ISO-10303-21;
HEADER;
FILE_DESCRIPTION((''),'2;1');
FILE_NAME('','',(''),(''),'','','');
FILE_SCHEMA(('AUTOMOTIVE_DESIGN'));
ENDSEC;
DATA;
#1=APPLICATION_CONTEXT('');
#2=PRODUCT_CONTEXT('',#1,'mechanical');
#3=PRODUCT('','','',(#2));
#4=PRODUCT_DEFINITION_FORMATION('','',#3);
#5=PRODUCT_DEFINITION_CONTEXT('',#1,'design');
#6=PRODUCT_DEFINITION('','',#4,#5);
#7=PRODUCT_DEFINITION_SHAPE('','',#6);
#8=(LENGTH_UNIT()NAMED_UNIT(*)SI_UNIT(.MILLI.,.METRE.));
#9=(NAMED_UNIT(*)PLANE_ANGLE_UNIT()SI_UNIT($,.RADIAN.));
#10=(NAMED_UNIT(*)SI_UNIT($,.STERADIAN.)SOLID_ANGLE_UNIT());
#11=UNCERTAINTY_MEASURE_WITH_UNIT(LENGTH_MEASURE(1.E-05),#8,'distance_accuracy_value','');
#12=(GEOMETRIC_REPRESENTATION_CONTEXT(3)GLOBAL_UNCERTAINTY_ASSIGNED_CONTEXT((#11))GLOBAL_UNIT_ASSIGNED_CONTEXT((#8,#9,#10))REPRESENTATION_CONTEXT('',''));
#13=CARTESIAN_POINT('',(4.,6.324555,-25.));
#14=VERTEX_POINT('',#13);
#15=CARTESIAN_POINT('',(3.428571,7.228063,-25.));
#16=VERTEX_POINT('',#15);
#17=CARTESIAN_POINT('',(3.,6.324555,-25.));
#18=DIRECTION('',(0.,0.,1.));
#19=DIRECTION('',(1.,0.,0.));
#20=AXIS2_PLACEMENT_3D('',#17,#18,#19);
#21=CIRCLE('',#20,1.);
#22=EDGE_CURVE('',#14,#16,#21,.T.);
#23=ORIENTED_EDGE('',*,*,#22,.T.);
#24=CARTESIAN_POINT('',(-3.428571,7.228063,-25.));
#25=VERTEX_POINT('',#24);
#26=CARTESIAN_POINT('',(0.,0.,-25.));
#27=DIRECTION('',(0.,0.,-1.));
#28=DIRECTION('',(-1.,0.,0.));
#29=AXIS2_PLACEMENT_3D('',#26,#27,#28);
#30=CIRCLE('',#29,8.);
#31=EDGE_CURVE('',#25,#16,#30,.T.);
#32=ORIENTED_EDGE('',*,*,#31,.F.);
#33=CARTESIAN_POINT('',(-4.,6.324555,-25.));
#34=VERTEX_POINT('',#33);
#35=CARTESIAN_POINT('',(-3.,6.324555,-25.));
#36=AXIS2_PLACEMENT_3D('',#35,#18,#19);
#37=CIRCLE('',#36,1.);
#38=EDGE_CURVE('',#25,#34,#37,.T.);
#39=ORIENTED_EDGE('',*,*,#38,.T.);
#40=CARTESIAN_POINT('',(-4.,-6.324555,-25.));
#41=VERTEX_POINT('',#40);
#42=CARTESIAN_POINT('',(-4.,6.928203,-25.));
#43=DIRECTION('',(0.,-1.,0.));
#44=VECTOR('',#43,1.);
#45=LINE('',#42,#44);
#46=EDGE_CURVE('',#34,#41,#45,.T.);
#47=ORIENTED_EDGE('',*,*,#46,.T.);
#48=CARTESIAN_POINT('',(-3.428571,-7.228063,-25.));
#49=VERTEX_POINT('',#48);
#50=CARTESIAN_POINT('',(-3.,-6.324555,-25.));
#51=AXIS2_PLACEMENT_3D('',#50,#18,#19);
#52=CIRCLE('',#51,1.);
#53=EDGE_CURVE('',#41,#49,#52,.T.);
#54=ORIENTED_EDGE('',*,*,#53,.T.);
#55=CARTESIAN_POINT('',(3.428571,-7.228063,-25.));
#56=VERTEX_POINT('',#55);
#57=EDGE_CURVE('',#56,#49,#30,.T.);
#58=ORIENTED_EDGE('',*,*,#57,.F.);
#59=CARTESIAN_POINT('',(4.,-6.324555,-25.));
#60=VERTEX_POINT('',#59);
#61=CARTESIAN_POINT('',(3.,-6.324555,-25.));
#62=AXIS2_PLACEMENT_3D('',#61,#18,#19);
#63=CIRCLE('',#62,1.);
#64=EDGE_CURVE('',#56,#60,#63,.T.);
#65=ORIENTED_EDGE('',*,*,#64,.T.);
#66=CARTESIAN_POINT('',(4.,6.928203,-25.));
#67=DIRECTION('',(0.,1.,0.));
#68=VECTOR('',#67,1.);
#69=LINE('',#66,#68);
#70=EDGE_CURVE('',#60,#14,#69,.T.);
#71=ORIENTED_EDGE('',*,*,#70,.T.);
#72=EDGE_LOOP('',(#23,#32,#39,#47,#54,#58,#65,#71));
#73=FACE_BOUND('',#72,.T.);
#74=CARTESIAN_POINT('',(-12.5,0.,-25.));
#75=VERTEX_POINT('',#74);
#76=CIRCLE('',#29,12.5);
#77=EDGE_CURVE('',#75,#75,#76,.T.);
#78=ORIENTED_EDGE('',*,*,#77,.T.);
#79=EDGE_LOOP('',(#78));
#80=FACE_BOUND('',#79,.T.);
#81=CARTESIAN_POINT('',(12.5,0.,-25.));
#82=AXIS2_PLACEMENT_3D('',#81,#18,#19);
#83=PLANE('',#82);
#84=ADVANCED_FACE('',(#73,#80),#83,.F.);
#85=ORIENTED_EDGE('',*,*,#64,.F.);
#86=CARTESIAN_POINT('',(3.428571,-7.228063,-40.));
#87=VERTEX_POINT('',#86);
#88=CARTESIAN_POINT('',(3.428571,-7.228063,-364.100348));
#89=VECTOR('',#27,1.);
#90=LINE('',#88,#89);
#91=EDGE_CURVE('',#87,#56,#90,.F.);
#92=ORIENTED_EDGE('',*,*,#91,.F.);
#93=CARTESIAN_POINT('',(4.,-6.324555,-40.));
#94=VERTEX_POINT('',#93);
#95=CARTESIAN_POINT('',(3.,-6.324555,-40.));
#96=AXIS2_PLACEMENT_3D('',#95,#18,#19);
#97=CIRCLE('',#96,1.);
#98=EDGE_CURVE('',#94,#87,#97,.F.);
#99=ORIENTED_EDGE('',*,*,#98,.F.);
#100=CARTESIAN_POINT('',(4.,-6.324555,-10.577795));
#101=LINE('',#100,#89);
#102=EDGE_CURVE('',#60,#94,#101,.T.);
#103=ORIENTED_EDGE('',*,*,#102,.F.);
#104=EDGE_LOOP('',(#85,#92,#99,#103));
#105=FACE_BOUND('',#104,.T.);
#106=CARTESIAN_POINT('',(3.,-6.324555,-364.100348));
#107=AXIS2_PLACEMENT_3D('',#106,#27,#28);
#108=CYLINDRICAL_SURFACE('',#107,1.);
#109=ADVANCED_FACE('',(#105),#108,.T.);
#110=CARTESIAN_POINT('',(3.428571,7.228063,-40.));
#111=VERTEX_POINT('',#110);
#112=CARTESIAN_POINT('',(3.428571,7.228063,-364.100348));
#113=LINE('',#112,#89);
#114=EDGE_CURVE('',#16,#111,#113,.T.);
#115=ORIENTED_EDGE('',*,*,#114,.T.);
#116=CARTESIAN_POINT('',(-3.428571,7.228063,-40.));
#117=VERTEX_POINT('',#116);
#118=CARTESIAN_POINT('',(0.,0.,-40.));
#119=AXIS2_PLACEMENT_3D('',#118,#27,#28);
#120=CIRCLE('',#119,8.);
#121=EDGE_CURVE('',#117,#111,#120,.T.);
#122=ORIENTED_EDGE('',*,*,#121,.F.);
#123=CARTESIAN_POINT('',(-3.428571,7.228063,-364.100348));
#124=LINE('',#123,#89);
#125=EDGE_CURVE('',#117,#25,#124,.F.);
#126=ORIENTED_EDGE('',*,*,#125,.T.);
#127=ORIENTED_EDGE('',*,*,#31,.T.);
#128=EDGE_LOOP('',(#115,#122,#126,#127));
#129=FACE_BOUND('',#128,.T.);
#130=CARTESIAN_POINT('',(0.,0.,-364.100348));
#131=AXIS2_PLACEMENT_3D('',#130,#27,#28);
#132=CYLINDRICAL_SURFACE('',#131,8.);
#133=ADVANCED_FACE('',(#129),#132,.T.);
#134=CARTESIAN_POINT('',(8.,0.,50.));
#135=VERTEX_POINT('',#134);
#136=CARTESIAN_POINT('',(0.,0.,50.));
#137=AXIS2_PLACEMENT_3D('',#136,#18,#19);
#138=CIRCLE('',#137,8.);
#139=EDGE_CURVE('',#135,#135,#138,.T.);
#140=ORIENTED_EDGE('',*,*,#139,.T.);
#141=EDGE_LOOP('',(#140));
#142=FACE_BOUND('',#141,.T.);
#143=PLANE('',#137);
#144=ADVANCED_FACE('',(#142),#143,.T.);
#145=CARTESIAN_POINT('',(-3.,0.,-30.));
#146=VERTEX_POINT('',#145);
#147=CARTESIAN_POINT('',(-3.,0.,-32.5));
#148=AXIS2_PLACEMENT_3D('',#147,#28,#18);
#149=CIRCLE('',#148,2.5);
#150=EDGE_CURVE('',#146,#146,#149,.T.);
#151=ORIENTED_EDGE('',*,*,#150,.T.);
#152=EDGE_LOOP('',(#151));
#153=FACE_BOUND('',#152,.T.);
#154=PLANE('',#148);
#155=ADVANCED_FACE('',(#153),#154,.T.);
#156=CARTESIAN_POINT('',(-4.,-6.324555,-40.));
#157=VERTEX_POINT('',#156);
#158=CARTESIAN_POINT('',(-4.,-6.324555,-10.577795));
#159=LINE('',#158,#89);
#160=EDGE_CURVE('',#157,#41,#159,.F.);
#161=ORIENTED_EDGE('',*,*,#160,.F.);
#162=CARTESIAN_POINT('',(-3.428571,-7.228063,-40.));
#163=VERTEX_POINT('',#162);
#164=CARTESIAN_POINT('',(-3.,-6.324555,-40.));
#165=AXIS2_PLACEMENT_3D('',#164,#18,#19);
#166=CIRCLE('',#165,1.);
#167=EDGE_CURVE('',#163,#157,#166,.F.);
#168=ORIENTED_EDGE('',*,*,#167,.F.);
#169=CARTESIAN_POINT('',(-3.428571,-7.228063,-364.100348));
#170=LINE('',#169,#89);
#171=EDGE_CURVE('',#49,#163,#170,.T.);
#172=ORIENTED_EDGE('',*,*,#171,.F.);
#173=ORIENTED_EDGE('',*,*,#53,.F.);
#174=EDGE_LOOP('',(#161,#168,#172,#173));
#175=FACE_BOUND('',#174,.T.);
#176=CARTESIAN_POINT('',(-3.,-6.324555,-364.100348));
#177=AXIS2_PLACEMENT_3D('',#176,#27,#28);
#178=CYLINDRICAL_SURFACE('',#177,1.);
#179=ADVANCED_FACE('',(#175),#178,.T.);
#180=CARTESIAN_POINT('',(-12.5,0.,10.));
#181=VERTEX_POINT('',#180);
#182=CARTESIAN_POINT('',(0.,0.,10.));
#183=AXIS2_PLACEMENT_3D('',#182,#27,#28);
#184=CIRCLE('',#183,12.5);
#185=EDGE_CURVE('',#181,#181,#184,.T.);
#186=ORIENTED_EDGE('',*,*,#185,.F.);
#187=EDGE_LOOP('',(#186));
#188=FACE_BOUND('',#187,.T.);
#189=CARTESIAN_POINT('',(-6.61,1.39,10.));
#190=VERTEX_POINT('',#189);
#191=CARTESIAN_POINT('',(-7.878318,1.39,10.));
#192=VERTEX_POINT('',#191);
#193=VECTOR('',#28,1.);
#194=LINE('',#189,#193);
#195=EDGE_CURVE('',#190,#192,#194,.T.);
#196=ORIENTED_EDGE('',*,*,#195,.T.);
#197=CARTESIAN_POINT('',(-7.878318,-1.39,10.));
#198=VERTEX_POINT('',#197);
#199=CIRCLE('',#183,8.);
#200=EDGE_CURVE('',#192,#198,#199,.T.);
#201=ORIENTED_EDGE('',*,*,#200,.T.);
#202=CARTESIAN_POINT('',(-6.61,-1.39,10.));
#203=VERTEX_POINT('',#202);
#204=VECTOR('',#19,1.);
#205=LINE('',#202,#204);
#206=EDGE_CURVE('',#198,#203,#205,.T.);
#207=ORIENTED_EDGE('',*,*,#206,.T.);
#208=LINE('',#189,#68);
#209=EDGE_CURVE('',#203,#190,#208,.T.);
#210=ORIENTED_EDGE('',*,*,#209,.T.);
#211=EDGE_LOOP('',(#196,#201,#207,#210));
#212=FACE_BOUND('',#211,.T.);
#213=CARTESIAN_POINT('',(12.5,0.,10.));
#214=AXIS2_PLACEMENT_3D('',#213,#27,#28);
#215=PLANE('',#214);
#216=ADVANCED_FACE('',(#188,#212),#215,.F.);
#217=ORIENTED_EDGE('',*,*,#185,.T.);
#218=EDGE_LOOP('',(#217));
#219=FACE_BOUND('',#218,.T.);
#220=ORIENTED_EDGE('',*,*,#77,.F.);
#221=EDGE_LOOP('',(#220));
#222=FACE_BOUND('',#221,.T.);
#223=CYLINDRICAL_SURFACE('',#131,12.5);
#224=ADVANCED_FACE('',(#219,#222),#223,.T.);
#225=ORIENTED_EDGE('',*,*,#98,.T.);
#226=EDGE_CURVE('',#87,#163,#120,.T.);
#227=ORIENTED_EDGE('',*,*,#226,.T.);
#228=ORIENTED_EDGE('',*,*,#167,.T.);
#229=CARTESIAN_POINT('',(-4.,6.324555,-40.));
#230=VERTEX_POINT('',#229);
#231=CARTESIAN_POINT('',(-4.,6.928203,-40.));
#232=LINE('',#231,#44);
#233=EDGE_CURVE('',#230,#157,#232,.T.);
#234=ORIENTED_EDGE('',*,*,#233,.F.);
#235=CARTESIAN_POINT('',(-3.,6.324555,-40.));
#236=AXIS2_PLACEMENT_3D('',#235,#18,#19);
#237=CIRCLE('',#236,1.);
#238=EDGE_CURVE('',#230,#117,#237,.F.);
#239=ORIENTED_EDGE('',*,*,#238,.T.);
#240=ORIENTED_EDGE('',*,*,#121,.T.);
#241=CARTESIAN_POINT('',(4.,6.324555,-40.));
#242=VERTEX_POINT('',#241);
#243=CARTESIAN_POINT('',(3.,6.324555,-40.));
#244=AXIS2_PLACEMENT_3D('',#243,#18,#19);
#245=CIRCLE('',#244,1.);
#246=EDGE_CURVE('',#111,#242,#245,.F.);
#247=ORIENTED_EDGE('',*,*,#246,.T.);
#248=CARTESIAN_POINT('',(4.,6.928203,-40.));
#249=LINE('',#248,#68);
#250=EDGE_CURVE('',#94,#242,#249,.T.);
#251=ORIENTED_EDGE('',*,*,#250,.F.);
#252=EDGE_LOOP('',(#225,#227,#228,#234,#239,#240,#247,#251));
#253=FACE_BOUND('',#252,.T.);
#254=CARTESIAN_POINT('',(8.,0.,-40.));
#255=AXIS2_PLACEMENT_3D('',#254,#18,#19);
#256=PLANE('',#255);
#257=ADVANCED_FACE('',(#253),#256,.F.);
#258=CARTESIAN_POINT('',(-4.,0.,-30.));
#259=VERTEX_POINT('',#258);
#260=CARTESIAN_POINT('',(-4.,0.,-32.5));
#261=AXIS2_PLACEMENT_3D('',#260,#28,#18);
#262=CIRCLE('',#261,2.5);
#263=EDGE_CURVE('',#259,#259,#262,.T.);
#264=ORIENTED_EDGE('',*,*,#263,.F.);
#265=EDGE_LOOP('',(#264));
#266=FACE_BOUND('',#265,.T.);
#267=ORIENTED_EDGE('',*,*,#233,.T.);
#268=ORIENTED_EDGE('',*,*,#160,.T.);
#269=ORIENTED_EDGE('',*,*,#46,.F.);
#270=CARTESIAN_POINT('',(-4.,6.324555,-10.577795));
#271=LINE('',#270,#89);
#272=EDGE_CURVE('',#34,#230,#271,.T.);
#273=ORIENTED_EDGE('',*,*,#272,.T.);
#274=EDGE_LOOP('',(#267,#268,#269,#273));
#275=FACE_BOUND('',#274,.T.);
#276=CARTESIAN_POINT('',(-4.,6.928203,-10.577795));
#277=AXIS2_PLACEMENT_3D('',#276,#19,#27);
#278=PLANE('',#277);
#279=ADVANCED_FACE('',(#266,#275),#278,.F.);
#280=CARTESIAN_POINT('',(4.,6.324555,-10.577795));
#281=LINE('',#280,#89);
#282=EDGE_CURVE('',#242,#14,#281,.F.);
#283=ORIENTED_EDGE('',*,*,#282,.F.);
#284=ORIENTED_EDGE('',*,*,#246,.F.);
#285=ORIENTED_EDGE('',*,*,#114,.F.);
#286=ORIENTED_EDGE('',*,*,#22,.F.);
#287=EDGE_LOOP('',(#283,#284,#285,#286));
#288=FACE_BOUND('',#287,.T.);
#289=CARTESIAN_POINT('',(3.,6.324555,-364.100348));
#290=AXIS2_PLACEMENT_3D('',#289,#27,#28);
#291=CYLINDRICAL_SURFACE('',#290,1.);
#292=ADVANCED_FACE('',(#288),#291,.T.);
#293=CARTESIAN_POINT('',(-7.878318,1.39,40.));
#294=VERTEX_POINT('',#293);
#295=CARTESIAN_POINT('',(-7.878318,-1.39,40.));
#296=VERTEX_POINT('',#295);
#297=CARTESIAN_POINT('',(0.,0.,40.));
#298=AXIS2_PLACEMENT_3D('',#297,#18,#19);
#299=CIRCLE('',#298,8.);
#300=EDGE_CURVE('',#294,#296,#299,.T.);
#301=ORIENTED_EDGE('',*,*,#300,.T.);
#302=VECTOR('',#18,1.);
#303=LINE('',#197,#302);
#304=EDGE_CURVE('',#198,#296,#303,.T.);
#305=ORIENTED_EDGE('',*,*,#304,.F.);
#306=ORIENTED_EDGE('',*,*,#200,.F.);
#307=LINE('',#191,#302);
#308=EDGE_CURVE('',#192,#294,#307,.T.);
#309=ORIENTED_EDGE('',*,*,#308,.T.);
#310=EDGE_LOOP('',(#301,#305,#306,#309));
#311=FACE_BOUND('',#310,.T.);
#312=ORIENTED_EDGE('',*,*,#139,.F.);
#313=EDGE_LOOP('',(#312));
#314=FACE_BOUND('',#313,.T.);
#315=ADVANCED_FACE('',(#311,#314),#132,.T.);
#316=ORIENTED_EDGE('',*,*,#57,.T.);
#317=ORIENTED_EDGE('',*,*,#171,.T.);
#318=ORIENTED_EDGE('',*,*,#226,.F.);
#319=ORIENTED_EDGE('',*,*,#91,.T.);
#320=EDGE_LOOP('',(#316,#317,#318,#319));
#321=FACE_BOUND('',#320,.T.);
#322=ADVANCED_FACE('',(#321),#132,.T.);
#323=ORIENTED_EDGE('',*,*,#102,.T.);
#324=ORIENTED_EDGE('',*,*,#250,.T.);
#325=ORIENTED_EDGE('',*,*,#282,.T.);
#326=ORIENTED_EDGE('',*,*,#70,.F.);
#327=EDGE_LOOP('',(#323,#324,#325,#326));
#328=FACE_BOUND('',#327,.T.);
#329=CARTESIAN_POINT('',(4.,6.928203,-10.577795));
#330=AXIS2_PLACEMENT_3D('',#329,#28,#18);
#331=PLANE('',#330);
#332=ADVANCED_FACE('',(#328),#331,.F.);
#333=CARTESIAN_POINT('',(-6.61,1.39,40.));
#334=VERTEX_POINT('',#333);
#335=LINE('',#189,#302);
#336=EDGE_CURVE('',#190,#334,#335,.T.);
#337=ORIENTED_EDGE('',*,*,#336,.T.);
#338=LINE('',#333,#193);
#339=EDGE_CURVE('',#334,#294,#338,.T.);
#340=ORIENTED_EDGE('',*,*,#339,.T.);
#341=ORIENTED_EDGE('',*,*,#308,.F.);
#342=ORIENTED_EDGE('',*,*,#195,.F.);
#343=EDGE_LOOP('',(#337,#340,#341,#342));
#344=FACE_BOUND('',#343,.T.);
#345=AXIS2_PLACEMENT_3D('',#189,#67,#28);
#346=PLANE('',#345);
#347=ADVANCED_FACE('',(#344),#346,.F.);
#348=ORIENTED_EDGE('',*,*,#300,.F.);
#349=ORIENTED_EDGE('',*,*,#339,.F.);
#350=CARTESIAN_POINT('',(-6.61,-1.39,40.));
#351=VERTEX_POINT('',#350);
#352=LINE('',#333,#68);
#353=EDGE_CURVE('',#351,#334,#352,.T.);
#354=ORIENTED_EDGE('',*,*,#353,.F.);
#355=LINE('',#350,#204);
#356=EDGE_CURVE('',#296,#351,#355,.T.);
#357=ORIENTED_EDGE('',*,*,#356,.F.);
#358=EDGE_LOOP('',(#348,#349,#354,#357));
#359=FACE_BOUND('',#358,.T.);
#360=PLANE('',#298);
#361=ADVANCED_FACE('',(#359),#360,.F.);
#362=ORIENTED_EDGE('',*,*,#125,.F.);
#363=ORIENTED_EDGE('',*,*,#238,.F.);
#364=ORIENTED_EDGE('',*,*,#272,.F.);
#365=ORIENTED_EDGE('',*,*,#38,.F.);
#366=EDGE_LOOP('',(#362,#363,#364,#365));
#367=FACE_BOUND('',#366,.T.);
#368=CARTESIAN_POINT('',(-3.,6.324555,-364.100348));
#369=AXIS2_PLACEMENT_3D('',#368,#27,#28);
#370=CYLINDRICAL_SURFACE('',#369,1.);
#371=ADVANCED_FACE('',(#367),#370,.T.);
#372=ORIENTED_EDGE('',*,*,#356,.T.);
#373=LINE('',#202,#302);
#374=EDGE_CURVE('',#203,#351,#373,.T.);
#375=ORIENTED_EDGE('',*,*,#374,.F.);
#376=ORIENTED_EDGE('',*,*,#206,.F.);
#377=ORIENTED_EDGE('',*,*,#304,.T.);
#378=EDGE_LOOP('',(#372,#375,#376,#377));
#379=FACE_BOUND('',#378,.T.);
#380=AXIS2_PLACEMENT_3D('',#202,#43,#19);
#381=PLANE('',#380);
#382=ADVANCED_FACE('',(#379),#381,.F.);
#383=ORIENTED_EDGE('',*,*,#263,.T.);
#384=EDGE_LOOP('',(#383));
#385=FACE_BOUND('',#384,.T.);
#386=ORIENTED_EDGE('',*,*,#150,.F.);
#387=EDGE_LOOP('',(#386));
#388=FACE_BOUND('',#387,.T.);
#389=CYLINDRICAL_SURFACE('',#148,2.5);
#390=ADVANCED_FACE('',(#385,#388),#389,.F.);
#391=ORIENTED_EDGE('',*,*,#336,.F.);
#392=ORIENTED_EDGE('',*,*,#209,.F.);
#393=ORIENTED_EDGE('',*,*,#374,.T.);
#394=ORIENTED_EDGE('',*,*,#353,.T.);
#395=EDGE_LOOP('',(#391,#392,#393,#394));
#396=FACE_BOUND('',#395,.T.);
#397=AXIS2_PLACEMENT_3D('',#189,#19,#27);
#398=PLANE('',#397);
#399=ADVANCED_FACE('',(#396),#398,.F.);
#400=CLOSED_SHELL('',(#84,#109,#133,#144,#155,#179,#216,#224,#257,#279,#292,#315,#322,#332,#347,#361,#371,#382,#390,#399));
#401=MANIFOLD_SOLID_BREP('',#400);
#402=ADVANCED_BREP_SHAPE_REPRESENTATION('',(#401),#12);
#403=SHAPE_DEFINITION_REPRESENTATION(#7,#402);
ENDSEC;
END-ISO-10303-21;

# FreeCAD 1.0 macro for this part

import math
import FreeCAD as App
import Part
import Sketcher

V = App.Vector


def edges_at(feature, points):
    """Names of the edges that pass closest to the given points."""
    edges = feature.Shape.Edges
    near = lambda p: min(range(len(edges)), key=lambda i: edges[i].distToShape(Part.Vertex(*p))[0])
    return sorted({f"Edge{near(p) + 1}" for p in points})


def add_polygon(sketch, points):
    """Adds a closed chain of lines whose ends are joined by coincident constraints."""
    first, n = sketch.GeometryCount, len(points)
    for a, b in zip(points, points[1:] + points[:1]):
        sketch.addGeometry(Part.LineSegment(App.Vector(*a, 0), App.Vector(*b, 0)), False)
    for i in range(n):
        sketch.addConstraint(Sketcher.Constraint("Coincident", first + i, 2, first + (i + 1) % n, 1))

doc = App.newDocument("Part")
body = doc.addObject("PartDesign::Body", "Body")

sketch1 = body.newObject("Sketcher::SketchObject", "Sketch")
sketch1.AttachmentSupport = (doc.getObject("XZ_Plane"), [""])
sketch1.MapMode = "FlatFace"
add_polygon(sketch1, [(0, 40), (8, 40), (8, 10), (12.5, 10), (12.5, -25), (8, -25), (8, -40), (0, -40)])
sketch1.addConstraint(Sketcher.Constraint("Horizontal", 0))
sketch1.addConstraint(Sketcher.Constraint("Vertical", 1))
sketch1.addConstraint(Sketcher.Constraint("Horizontal", 2))
sketch1.addConstraint(Sketcher.Constraint("Vertical", 3))
sketch1.addConstraint(Sketcher.Constraint("Horizontal", 4))
sketch1.addConstraint(Sketcher.Constraint("Vertical", 5))
sketch1.addConstraint(Sketcher.Constraint("Horizontal", 6))
sketch1.addConstraint(Sketcher.Constraint("Vertical", 7))
sketch1.addConstraint(Sketcher.Constraint("Symmetric", 6, 2, 7, 2, -1, 1))
sketch1.addConstraint(Sketcher.Constraint("Vertical", 1, 2, 4, 2))
sketch1.addConstraint(Sketcher.Constraint("DistanceX", 0, 1, 0, 2, 8.0))
sketch1.addConstraint(Sketcher.Constraint("DistanceY", 1, 2, 1, 1, 30.0))
sketch1.addConstraint(Sketcher.Constraint("DistanceY", 3, 2, 3, 1, 35.0))
sketch1.addConstraint(Sketcher.Constraint("DistanceY", 5, 2, 5, 1, 15.0))
sketch1.addConstraint(Sketcher.Constraint("DistanceX", 2, 1, 2, 2, 4.5))
revolution = body.newObject("PartDesign::Revolution", "Revolution")
revolution.Profile = sketch1
revolution.ReferenceAxis = (sketch1, ["V_Axis"])
revolution.Angle = 360

sketch2 = body.newObject("Sketcher::SketchObject", "Sketch001")
sketch2.AttachmentSupport = (doc.getObject("XY_Plane"), [""])
sketch2.MapMode = "FlatFace"
sketch2.AttachmentOffset = App.Placement(V(0, 0, 10), App.Rotation())
sketch2.addGeometry(Part.LineSegment(V(-6.61, 1.39, 0), V(-7.878318, 1.39, 0)), False)
sketch2.addGeometry(Part.ArcOfCircle(Part.Circle(V(0, 0, 0), V(0, 0, 1), 8), math.radians(169.994076), math.radians(190.005924)), False)
sketch2.addGeometry(Part.LineSegment(V(-7.878318, -1.39, 0), V(-6.61, -1.39, 0)), False)
sketch2.addGeometry(Part.LineSegment(V(-6.61, -1.39, 0), V(-6.61, 1.39, 0)), False)
sketch2.addConstraint(Sketcher.Constraint("Coincident", 0, 2, 1, 1))
sketch2.addConstraint(Sketcher.Constraint("Coincident", 1, 2, 2, 1))
sketch2.addConstraint(Sketcher.Constraint("Coincident", 2, 2, 3, 1))
sketch2.addConstraint(Sketcher.Constraint("Coincident", 3, 2, 0, 1))
sketch2.addConstraint(Sketcher.Constraint("Horizontal", 0))
sketch2.addConstraint(Sketcher.Constraint("Horizontal", 2))
sketch2.addConstraint(Sketcher.Constraint("Vertical", 3))
sketch2.addConstraint(Sketcher.Constraint("Coincident", 1, 3, -1, 1))
sketch2.addConstraint(Sketcher.Constraint("Vertical", 0, 2, 1, 2))
sketch2.addConstraint(Sketcher.Constraint("Radius", 1, 8.0))
sketch2.addConstraint(Sketcher.Constraint("DistanceY", 3, 1, 3, 2, 2.78))
sketch2.addConstraint(Sketcher.Constraint("DistanceX", 2, 2, -1, 1, 6.61))
pocket1 = body.newObject("PartDesign::Pocket", "Pocket")
pocket1.Profile = sketch2
pocket1.Length = 30
pocket1.Reversed = True

sketch3 = body.newObject("Sketcher::SketchObject", "Sketch002")
sketch3.AttachmentSupport = (doc.getObject("XY_Plane"), [""])
sketch3.MapMode = "FlatFace"
sketch3.AttachmentOffset = App.Placement(V(0, 0, 40), App.Rotation())
sketch3.addGeometry(Part.Circle(V(0, 0, 0), V(0, 0, 1), 8), False)
sketch3.addConstraint(Sketcher.Constraint("Coincident", 0, 3, -1, 1))
sketch3.addConstraint(Sketcher.Constraint("Diameter", 0, 16.0))
pad1 = body.newObject("PartDesign::Pad", "Pad")
pad1.Profile = sketch3
pad1.Length = 10

sketch4 = body.newObject("Sketcher::SketchObject", "Sketch003")
sketch4.AttachmentSupport = (doc.getObject("XY_Plane"), [""])
sketch4.MapMode = "FlatFace"
sketch4.AttachmentOffset = App.Placement(V(0, 0, -40), App.Rotation())
sketch4.addGeometry(Part.LineSegment(V(4, -6.928203, 0), V(4, 6.928203, 0)), False)
sketch4.addGeometry(Part.ArcOfCircle(Part.Circle(V(0, 0, 0), V(0, 0, 1), 8), math.radians(-60), math.radians(60)), False)
sketch4.addGeometry(Part.LineSegment(V(-4, 6.928203, 0), V(-4, -6.928203, 0)), False)
sketch4.addGeometry(Part.ArcOfCircle(Part.Circle(V(0, 0, 0), V(0, 0, 1), 8), math.radians(120), math.radians(240)), False)
sketch4.addConstraint(Sketcher.Constraint("Coincident", 0, 1, 1, 1))
sketch4.addConstraint(Sketcher.Constraint("Coincident", 1, 2, 0, 2))
sketch4.addConstraint(Sketcher.Constraint("Coincident", 2, 1, 3, 1))
sketch4.addConstraint(Sketcher.Constraint("Coincident", 3, 2, 2, 2))
sketch4.addConstraint(Sketcher.Constraint("Vertical", 0))
sketch4.addConstraint(Sketcher.Constraint("Vertical", 2))
sketch4.addConstraint(Sketcher.Constraint("Coincident", 1, 3, -1, 1))
sketch4.addConstraint(Sketcher.Constraint("Coincident", 3, 3, -1, 1))
sketch4.addConstraint(Sketcher.Constraint("Equal", 1, 3))
sketch4.addConstraint(Sketcher.Constraint("Horizontal", 1, 2, 2, 1))
sketch4.addConstraint(Sketcher.Constraint("Radius", 1, 8.0))
sketch4.addConstraint(Sketcher.Constraint("DistanceX", -1, 1, 0, 1, 4.0))
pocket2 = body.newObject("PartDesign::Pocket", "Pocket001")
pocket2.Profile = sketch4
pocket2.Length = 15
pocket2.Reversed = True
doc.recompute()

fillet = body.newObject("PartDesign::Fillet", "Fillet")
fillet.Base = (pocket2, edges_at(pocket2, [
    (4, 6.928, -32.5),
    (4, -6.928, -32.5),
    (-4, -6.928, -32.5),
    (-4, 6.928, -32.5),
]))
fillet.Radius = 1

sketch5 = body.newObject("Sketcher::SketchObject", "Sketch004")
sketch5.AttachmentSupport = (doc.getObject("YZ_Plane"), [""])
sketch5.MapMode = "FlatFace"
sketch5.AttachmentOffset = App.Placement(V(0, 0, -4), App.Rotation())
sketch5.addGeometry(Part.Circle(V(0, -32.5, 0), V(0, 0, 1), 2.5), False)
sketch5.addConstraint(Sketcher.Constraint("PointOnObject", 0, 3, -2))
sketch5.addConstraint(Sketcher.Constraint("Diameter", 0, 5.0))
sketch5.addConstraint(Sketcher.Constraint("DistanceY", 0, 3, -1, 1, 32.5))
pocket3 = body.newObject("PartDesign::Pocket", "Pocket002")
pocket3.Profile = sketch5
pocket3.Length = 1
pocket3.Reversed = True

doc.recompute()
